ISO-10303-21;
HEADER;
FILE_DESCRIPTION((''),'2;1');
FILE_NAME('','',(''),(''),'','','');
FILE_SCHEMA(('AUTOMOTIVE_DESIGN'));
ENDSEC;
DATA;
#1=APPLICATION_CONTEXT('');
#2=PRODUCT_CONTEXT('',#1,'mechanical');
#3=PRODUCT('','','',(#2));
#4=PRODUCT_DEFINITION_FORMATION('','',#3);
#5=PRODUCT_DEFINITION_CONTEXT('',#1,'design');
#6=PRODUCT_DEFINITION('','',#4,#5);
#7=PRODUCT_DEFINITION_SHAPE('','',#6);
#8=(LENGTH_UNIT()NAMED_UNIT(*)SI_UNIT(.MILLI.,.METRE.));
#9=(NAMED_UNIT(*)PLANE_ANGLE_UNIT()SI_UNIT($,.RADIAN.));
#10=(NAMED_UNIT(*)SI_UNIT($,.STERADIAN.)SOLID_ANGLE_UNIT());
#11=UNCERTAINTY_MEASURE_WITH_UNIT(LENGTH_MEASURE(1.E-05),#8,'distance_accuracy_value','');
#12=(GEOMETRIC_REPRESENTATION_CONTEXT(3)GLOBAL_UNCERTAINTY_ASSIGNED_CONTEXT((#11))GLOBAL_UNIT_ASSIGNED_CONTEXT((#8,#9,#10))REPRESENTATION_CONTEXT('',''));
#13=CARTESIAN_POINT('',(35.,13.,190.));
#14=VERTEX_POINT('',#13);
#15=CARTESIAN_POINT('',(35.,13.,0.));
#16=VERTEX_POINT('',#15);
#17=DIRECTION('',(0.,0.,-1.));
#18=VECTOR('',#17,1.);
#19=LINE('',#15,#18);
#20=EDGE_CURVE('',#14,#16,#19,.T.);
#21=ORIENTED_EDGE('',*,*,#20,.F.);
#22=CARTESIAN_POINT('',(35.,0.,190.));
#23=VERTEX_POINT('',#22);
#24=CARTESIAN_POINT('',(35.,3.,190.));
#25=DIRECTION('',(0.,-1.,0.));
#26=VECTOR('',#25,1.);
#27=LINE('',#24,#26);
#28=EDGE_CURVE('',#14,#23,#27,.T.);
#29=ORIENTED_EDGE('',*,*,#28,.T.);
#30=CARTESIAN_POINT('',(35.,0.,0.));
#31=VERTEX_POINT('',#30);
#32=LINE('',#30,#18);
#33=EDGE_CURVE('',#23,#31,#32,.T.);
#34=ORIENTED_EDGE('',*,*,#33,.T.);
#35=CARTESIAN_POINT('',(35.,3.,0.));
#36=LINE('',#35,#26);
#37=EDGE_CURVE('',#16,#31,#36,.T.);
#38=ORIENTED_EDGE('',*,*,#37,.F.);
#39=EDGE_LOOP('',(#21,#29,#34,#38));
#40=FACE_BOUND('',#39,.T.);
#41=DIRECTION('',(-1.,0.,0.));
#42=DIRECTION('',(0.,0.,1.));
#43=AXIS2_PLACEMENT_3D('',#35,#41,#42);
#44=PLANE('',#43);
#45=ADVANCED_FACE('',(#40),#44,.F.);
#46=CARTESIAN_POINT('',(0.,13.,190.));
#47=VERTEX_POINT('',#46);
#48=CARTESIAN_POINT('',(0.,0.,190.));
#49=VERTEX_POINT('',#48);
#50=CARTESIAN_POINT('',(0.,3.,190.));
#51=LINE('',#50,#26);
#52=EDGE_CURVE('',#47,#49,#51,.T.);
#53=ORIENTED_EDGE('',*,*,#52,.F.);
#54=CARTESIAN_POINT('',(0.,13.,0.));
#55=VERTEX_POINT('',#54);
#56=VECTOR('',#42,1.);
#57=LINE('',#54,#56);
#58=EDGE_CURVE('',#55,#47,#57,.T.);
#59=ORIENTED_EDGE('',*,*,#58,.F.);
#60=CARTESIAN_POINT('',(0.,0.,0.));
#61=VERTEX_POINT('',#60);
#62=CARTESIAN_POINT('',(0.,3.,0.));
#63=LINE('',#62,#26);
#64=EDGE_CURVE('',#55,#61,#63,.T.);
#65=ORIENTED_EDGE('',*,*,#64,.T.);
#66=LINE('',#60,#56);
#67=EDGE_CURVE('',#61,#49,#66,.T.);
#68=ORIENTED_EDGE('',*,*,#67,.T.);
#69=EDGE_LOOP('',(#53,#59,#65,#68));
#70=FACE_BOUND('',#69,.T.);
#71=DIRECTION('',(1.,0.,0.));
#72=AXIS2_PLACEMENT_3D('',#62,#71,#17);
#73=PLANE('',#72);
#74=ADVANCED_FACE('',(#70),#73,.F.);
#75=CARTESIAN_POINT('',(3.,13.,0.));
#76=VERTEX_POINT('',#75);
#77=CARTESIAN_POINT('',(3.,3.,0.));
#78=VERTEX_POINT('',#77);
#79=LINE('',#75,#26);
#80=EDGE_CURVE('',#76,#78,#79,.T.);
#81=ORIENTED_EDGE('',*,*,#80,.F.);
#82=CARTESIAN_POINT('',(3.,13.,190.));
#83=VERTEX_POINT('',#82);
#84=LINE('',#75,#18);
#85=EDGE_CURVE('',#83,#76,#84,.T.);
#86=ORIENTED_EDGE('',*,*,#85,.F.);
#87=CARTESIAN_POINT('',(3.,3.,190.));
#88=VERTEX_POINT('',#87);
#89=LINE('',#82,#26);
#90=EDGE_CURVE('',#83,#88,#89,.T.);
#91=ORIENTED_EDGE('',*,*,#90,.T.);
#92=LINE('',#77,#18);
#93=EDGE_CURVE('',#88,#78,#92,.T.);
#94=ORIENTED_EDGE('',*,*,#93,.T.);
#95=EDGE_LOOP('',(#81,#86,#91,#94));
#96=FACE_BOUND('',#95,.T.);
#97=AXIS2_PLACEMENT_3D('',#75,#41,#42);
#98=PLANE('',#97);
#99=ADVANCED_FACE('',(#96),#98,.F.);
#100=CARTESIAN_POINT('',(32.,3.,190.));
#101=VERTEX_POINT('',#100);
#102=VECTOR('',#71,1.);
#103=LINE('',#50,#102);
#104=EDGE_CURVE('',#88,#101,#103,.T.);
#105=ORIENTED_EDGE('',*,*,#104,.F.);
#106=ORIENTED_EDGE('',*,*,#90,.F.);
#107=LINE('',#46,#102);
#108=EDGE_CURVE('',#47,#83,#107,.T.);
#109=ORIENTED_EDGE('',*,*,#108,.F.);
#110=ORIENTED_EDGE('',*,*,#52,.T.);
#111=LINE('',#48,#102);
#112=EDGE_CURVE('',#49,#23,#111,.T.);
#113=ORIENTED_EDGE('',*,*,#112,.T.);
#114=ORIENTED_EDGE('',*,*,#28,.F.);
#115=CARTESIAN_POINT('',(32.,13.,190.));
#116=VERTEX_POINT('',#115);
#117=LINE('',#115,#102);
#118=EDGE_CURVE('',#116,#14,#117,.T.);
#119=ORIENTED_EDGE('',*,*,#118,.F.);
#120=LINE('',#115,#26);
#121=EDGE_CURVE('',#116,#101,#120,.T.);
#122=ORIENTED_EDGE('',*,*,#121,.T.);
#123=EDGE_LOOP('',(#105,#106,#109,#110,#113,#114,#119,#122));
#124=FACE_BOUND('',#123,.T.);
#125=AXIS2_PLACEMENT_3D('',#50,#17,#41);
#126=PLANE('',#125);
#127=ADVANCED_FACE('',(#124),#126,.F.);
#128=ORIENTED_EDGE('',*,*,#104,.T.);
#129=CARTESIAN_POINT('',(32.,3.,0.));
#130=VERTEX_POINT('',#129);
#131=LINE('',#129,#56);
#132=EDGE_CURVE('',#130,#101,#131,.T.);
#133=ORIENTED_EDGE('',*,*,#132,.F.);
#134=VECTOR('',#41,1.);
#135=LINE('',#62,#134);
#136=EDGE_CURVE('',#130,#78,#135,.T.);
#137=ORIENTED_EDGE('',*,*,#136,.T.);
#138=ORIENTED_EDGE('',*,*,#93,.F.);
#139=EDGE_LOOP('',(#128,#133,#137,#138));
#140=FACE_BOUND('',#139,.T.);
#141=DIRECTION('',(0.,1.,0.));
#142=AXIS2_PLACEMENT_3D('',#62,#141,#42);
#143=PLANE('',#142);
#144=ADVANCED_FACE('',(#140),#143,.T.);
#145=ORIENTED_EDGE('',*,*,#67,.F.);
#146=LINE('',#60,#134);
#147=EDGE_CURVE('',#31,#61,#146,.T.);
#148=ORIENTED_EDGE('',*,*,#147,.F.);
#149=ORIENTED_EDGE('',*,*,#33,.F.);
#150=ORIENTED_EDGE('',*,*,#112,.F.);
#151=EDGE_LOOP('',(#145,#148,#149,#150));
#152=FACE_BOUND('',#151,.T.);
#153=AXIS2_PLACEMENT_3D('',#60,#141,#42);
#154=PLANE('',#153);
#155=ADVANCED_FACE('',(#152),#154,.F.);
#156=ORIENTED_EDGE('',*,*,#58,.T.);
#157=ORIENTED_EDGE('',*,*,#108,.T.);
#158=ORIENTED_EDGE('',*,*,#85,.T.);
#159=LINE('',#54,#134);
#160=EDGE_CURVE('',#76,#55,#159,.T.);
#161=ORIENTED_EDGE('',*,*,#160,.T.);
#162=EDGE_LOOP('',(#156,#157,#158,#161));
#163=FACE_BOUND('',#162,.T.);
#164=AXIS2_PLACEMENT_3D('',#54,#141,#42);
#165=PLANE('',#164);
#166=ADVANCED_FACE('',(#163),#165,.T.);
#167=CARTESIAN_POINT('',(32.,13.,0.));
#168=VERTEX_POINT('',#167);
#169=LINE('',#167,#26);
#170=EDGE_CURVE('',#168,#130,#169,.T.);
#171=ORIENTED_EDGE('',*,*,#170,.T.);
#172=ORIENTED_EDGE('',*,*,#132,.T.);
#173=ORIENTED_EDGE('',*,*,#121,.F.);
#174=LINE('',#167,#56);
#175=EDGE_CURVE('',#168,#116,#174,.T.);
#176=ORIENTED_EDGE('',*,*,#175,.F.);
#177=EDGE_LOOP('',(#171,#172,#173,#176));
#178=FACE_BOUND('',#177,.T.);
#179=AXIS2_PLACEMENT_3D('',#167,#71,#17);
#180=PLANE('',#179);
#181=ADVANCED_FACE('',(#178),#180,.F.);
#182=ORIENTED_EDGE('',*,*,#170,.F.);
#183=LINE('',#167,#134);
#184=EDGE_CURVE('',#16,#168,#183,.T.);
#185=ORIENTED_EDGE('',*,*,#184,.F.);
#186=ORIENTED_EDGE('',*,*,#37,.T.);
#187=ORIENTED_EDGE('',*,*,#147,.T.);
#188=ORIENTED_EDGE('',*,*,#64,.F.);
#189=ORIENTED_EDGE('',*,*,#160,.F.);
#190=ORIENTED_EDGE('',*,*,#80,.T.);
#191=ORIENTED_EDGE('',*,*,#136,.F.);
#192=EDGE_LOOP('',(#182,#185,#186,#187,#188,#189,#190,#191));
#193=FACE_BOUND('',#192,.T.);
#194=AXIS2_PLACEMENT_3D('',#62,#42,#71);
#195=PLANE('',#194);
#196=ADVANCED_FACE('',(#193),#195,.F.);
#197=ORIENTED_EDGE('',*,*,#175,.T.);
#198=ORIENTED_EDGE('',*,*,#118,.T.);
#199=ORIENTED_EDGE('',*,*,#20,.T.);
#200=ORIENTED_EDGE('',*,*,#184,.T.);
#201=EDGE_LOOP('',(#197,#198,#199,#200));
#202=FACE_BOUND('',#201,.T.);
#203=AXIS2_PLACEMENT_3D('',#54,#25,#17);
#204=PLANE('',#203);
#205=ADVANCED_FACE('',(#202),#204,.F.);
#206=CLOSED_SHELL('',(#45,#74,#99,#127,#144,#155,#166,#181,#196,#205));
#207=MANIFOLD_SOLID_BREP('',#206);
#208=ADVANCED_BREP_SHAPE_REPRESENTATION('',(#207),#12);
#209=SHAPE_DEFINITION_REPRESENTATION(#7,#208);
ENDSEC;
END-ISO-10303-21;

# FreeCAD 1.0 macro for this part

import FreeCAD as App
import Part
import Sketcher
from FreeCAD import Vector
Q = App.Units.Quantity

doc = App.newDocument("Part")
body = doc.addObject("PartDesign::Body", "Body")

# Sketch on XZ plane
sketch1 = doc.addObject("Sketcher::SketchObject", "Sketch")
body.addObject(sketch1)
sketch1.AttachmentSupport = (doc.XZ_Plane, [""])
sketch1.MapMode = "FlatFace"
sketch1.addGeometry(Part.LineSegment(Vector(0, 0, 0), Vector(0, 190, 0)), False)
sketch1.addGeometry(Part.LineSegment(Vector(0, 190, 0), Vector(35, 190, 0)), False)
sketch1.addGeometry(Part.LineSegment(Vector(35, 190, 0), Vector(35, 0, 0)), False)
sketch1.addGeometry(Part.LineSegment(Vector(35, 0, 0), Vector(0, 0, 0)), False)
sketch1.addConstraint(Sketcher.Constraint("Coincident", 0, 2, 1, 1))
sketch1.addConstraint(Sketcher.Constraint("Coincident", 1, 2, 2, 1))
sketch1.addConstraint(Sketcher.Constraint("Coincident", 2, 2, 3, 1))
sketch1.addConstraint(Sketcher.Constraint("Coincident", 3, 2, 0, 1))
sketch1.addConstraint(Sketcher.Constraint("Vertical", 0))
sketch1.addConstraint(Sketcher.Constraint("Horizontal", 1))
sketch1.addConstraint(Sketcher.Constraint("Vertical", 2))
sketch1.addConstraint(Sketcher.Constraint("Horizontal", 3))
sketch1.addConstraint(Sketcher.Constraint("Coincident", 3, 2, -1, 1))
sketch1.addConstraint(Sketcher.Constraint("DistanceX", 1, 1, 1, 2, Q("35 mm")))
sketch1.addConstraint(Sketcher.Constraint("DistanceY", 0, 1, 0, 2, Q("190 mm")))
pad1 = doc.addObject("PartDesign::Pad", "Pad")
body.addObject(pad1)
pad1.Profile = sketch1
pad1.Length = 3
pad1.Reversed = True

# Sketch on XZ plane
sketch2 = doc.addObject("Sketcher::SketchObject", "Sketch001")
body.addObject(sketch2)
sketch2.AttachmentSupport = (doc.XZ_Plane, [""])
sketch2.MapMode = "FlatFace"
sketch2.AttachmentOffset = App.Placement(Vector(0, 0, -3), App.Rotation())
sketch2.addGeometry(Part.LineSegment(Vector(32, 0, 0), Vector(32, 190, 0)), False)
sketch2.addGeometry(Part.LineSegment(Vector(32, 190, 0), Vector(35, 190, 0)), False)
sketch2.addGeometry(Part.LineSegment(Vector(35, 190, 0), Vector(35, 0, 0)), False)
sketch2.addGeometry(Part.LineSegment(Vector(35, 0, 0), Vector(32, 0, 0)), False)
sketch2.addGeometry(Part.LineSegment(Vector(0, 0, 0), Vector(0, 190, 0)), False)
sketch2.addGeometry(Part.LineSegment(Vector(0, 190, 0), Vector(3, 190, 0)), False)
sketch2.addGeometry(Part.LineSegment(Vector(3, 190, 0), Vector(3, 0, 0)), False)
sketch2.addGeometry(Part.LineSegment(Vector(3, 0, 0), Vector(0, 0, 0)), False)
sketch2.addConstraint(Sketcher.Constraint("Coincident", 0, 2, 1, 1))
sketch2.addConstraint(Sketcher.Constraint("Coincident", 1, 2, 2, 1))
sketch2.addConstraint(Sketcher.Constraint("Coincident", 2, 2, 3, 1))
sketch2.addConstraint(Sketcher.Constraint("Coincident", 3, 2, 0, 1))
sketch2.addConstraint(Sketcher.Constraint("Coincident", 4, 2, 5, 1))
sketch2.addConstraint(Sketcher.Constraint("Coincident", 5, 2, 6, 1))
sketch2.addConstraint(Sketcher.Constraint("Coincident", 6, 2, 7, 1))
sketch2.addConstraint(Sketcher.Constraint("Coincident", 7, 2, 4, 1))
sketch2.addConstraint(Sketcher.Constraint("Vertical", 0))
sketch2.addConstraint(Sketcher.Constraint("Horizontal", 1))
sketch2.addConstraint(Sketcher.Constraint("Vertical", 2))
sketch2.addConstraint(Sketcher.Constraint("Horizontal", 3))
sketch2.addConstraint(Sketcher.Constraint("Vertical", 4))
sketch2.addConstraint(Sketcher.Constraint("Horizontal", 5))
sketch2.addConstraint(Sketcher.Constraint("Vertical", 6))
sketch2.addConstraint(Sketcher.Constraint("Horizontal", 7))
sketch2.addConstraint(Sketcher.Constraint("Coincident", 7, 2, -1, 1))
sketch2.addConstraint(Sketcher.Constraint("PointOnObject", 2, 2, -1))
sketch2.addConstraint(Sketcher.Constraint("Horizontal", 1, 2, 4, 2))
sketch2.addConstraint(Sketcher.Constraint("Equal", 3, 5))
sketch2.addConstraint(Sketcher.Constraint("DistanceX", 1, 1, 1, 2, Q("3 mm")))
sketch2.addConstraint(Sketcher.Constraint("DistanceY", 0, 1, 0, 2, Q("190 mm")))
sketch2.addConstraint(Sketcher.Constraint("DistanceX", -1, 1, 0, 2, Q("32 mm")))
pad2 = doc.addObject("PartDesign::Pad", "Pad001")
body.addObject(pad2)
pad2.Profile = sketch2
pad2.Length = 10
pad2.Reversed = True

doc.recompute()
